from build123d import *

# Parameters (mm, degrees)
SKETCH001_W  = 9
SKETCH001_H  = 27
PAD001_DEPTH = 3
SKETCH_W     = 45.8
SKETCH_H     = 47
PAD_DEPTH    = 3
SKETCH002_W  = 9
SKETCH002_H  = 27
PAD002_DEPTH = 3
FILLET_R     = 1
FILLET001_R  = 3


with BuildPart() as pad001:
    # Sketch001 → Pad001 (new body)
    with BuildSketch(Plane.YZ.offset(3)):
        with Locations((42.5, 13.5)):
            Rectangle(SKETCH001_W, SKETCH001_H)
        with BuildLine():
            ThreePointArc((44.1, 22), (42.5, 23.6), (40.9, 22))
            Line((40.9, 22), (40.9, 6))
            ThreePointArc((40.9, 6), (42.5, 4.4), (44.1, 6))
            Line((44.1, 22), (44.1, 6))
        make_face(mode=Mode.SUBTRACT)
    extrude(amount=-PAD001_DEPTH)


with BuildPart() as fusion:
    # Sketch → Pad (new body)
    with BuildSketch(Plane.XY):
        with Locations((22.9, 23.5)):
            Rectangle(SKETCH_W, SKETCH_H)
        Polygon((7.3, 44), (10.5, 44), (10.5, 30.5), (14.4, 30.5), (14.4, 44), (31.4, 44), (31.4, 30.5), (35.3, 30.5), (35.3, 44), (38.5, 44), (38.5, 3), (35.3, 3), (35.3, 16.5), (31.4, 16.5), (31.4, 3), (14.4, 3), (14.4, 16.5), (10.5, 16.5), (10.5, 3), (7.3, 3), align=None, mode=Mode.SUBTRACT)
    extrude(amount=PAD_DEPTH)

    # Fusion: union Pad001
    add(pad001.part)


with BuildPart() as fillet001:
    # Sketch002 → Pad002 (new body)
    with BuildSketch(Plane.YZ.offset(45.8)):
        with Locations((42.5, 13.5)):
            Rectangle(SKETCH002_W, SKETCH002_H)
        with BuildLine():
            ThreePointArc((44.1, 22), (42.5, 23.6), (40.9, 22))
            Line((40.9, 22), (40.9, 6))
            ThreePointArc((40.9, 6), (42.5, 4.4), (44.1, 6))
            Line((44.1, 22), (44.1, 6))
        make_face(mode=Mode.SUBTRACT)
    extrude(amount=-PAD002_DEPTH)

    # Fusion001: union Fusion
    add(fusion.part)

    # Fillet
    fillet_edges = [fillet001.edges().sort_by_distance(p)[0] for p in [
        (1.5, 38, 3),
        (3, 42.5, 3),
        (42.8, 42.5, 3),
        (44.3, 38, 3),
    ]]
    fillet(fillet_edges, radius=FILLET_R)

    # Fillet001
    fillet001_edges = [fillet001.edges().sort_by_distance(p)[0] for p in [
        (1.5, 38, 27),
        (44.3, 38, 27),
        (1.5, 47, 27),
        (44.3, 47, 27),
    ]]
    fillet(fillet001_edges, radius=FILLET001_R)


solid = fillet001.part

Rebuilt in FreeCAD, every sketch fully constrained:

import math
import FreeCAD as App
import Part
import Sketcher
from FreeCAD import Vector


def edges_at(feature, points):
    """Names of the edges that pass closest to the given points."""
    edges = feature.Shape.Edges
    near = lambda p: min(range(len(edges)), key=lambda i: edges[i].distToShape(Part.Vertex(*p))[0])
    return sorted({f"Edge{near(p) + 1}" for p in points})

doc = App.newDocument("Part")
params = doc.addObject("Spreadsheet::Sheet", "Params")
for row, (alias, value) in enumerate([
    ("sketch1_radius", "1.6 mm"),
    ("sketch1_width", "9 mm"),
    ("sketch1_height", "27 mm"),
    ("sketch1_height2", "16 mm"),
    ("pad1_length", "3 mm"),
    ("sketch2_width", "17 mm"),
    ("sketch2_height", "47 mm"),
    ("sketch2_height2", "41 mm"),
    ("sketch2_width2", "45.8 mm"),
    ("sketch2_width3", "3.2 mm"),
    ("pad2_length", "3 mm"),
    ("sketch3_radius", "1.6 mm"),
    ("sketch3_width", "9 mm"),
    ("sketch3_height", "27 mm"),
    ("sketch3_height2", "16 mm"),
    ("pad3_length", "3 mm"),
    ("fillet_radius", "1 mm"),
    ("fillet2_radius", "3 mm"),
], start=1):
    params.set(f"A{row}", alias)
    params.set(f"B{row}", "=" + value)
    params.setAlias(f"B{row}", alias)

body = doc.addObject("PartDesign::Body", "Body")

# Sketch on YZ plane
sketch1 = doc.addObject("Sketcher::SketchObject", "Sketch")
body.addObject(sketch1)
sketch1.AttachmentSupport = (doc.YZ_Plane, [""])
sketch1.MapMode = "FlatFace"
sketch1.AttachmentOffset = App.Placement(Vector(0, 0, 3), App.Rotation())
sketch1.addGeometry(Part.LineSegment(Vector(38, 27, 0), Vector(38, 0, 0)), False)
sketch1.addGeometry(Part.LineSegment(Vector(38, 0, 0), Vector(47, 0, 0)), False)
sketch1.addGeometry(Part.LineSegment(Vector(47, 0, 0), Vector(47, 27, 0)), False)
sketch1.addGeometry(Part.LineSegment(Vector(47, 27, 0), Vector(38, 27, 0)), False)
sketch1.addGeometry(Part.ArcOfCircle(Part.Circle(Vector(42.5, 22, 0), Vector(0, 0, 1), 1.6), math.radians(0), math.radians(180)), False)
sketch1.addGeometry(Part.LineSegment(Vector(44.1, 22, 0), Vector(44.1, 6, 0)), False)
sketch1.addGeometry(Part.ArcOfCircle(Part.Circle(Vector(42.5, 6, 0), Vector(0, 0, 1), 1.6), math.radians(180), math.radians(360)), False)
sketch1.addGeometry(Part.LineSegment(Vector(40.9, 6, 0), Vector(40.9, 22, 0)), False)
sketch1.addConstraint(Sketcher.Constraint("Coincident", 0, 2, 1, 1))
sketch1.addConstraint(Sketcher.Constraint("Coincident", 1, 2, 2, 1))
sketch1.addConstraint(Sketcher.Constraint("Coincident", 2, 2, 3, 1))
sketch1.addConstraint(Sketcher.Constraint("Coincident", 3, 2, 0, 1))
sketch1.addConstraint(Sketcher.Constraint("Tangent", 4, 1, 5, 1))
sketch1.addConstraint(Sketcher.Constraint("Tangent", 5, 2, 6, 2))
sketch1.addConstraint(Sketcher.Constraint("Tangent", 6, 1, 7, 1))
sketch1.addConstraint(Sketcher.Constraint("Tangent", 7, 2, 4, 2))
sketch1.addConstraint(Sketcher.Constraint("Vertical", 0))
sketch1.addConstraint(Sketcher.Constraint("Horizontal", 1))
sketch1.addConstraint(Sketcher.Constraint("Vertical", 2))
sketch1.addConstraint(Sketcher.Constraint("Horizontal", 3))
sketch1.addConstraint(Sketcher.Constraint("Vertical", 5))
sketch1.addConstraint(Sketcher.Constraint("Vertical", 7))
sketch1.addConstraint(Sketcher.Constraint("PointOnObject", 0, 2, -1))
sketch1.addConstraint(Sketcher.Constraint("Radius", 4, 1.6))
sketch1.addConstraint(Sketcher.Constraint("DistanceX", 1, 1, 1, 2, 9.0))
sketch1.addConstraint(Sketcher.Constraint("DistanceY", 0, 2, 0, 1, 27.0))
sketch1.addConstraint(Sketcher.Constraint("DistanceY", 5, 2, 5, 1, 16.0))
sketch1.addConstraint(Sketcher.Constraint("DistanceY", -1, 1, 4, 3, 22.0))
sketch1.addConstraint(Sketcher.Constraint("DistanceX", -1, 1, 0, 2, 38.0))
sketch1.addConstraint(Sketcher.Constraint("DistanceX", -1, 1, 4, 3, 42.5))
sketch1.setExpression("Constraints[15]", "Params.sketch1_radius")
sketch1.setExpression("Constraints[16]", "Params.sketch1_width")
sketch1.setExpression("Constraints[17]", "Params.sketch1_height")
sketch1.setExpression("Constraints[18]", "Params.sketch1_height2")
pad1 = doc.addObject("PartDesign::Pad", "Pad")
body.addObject(pad1)
pad1.Profile = sketch1
pad1.setExpression("Length", "Params.pad1_length")
pad1.Reversed = True
body2 = doc.addObject("PartDesign::Body", "Body001")

# Sketch on XY plane
sketch2 = doc.addObject("Sketcher::SketchObject", "Sketch001")
body2.addObject(sketch2)
sketch2.AttachmentSupport = (doc.getObject("XY_Plane001"), [""])
sketch2.MapMode = "FlatFace"
sketch2.addGeometry(Part.LineSegment(Vector(0, 47, 0), Vector(0, 0, 0)), False)
sketch2.addGeometry(Part.LineSegment(Vector(0, 0, 0), Vector(45.8, 0, 0)), False)
sketch2.addGeometry(Part.LineSegment(Vector(45.8, 0, 0), Vector(45.8, 47, 0)), False)
sketch2.addGeometry(Part.LineSegment(Vector(45.8, 47, 0), Vector(0, 47, 0)), False)
sketch2.addGeometry(Part.LineSegment(Vector(7.3, 3, 0), Vector(7.3, 44, 0)), False)
sketch2.addGeometry(Part.LineSegment(Vector(7.3, 44, 0), Vector(10.5, 44, 0)), False)
sketch2.addGeometry(Part.LineSegment(Vector(10.5, 44, 0), Vector(10.5, 30.5, 0)), False)
sketch2.addGeometry(Part.LineSegment(Vector(10.5, 30.5, 0), Vector(14.4, 30.5, 0)), False)
sketch2.addGeometry(Part.LineSegment(Vector(14.4, 30.5, 0), Vector(14.4, 44, 0)), False)
sketch2.addGeometry(Part.LineSegment(Vector(14.4, 44, 0), Vector(31.4, 44, 0)), False)
sketch2.addGeometry(Part.LineSegment(Vector(31.4, 44, 0), Vector(31.4, 30.5, 0)), False)
sketch2.addGeometry(Part.LineSegment(Vector(31.4, 30.5, 0), Vector(35.3, 30.5, 0)), False)
sketch2.addGeometry(Part.LineSegment(Vector(35.3, 30.5, 0), Vector(35.3, 44, 0)), False)
sketch2.addGeometry(Part.LineSegment(Vector(35.3, 44, 0), Vector(38.5, 44, 0)), False)
sketch2.addGeometry(Part.LineSegment(Vector(38.5, 44, 0), Vector(38.5, 3, 0)), False)
sketch2.addGeometry(Part.LineSegment(Vector(38.5, 3, 0), Vector(35.3, 3, 0)), False)
sketch2.addGeometry(Part.LineSegment(Vector(35.3, 3, 0), Vector(35.3, 16.5, 0)), False)
sketch2.addGeometry(Part.LineSegment(Vector(35.3, 16.5, 0), Vector(31.4, 16.5, 0)), False)
sketch2.addGeometry(Part.LineSegment(Vector(31.4, 16.5, 0), Vector(31.4, 3, 0)), False)
sketch2.addGeometry(Part.LineSegment(Vector(31.4, 3, 0), Vector(14.4, 3, 0)), False)
sketch2.addGeometry(Part.LineSegment(Vector(14.4, 3, 0), Vector(14.4, 16.5, 0)), False)
sketch2.addGeometry(Part.LineSegment(Vector(14.4, 16.5, 0), Vector(10.5, 16.5, 0)), False)
sketch2.addGeometry(Part.LineSegment(Vector(10.5, 16.5, 0), Vector(10.5, 3, 0)), False)
sketch2.addGeometry(Part.LineSegment(Vector(10.5, 3, 0), Vector(7.3, 3, 0)), False)
sketch2.addConstraint(Sketcher.Constraint("Coincident", 0, 2, 1, 1))
sketch2.addConstraint(Sketcher.Constraint("Coincident", 1, 2, 2, 1))
sketch2.addConstraint(Sketcher.Constraint("Coincident", 2, 2, 3, 1))
sketch2.addConstraint(Sketcher.Constraint("Coincident", 3, 2, 0, 1))
sketch2.addConstraint(Sketcher.Constraint("Coincident", 4, 2, 5, 1))
sketch2.addConstraint(Sketcher.Constraint("Coincident", 5, 2, 6, 1))
sketch2.addConstraint(Sketcher.Constraint("Coincident", 6, 2, 7, 1))
sketch2.addConstraint(Sketcher.Constraint("Coincident", 7, 2, 8, 1))
sketch2.addConstraint(Sketcher.Constraint("Coincident", 8, 2, 9, 1))
sketch2.addConstraint(Sketcher.Constraint("Coincident", 9, 2, 10, 1))
sketch2.addConstraint(Sketcher.Constraint("Coincident", 10, 2, 11, 1))
sketch2.addConstraint(Sketcher.Constraint("Coincident", 11, 2, 12, 1))
sketch2.addConstraint(Sketcher.Constraint("Coincident", 12, 2, 13, 1))
sketch2.addConstraint(Sketcher.Constraint("Coincident", 13, 2, 14, 1))
sketch2.addConstraint(Sketcher.Constraint("Coincident", 14, 2, 15, 1))
sketch2.addConstraint(Sketcher.Constraint("Coincident", 15, 2, 16, 1))
sketch2.addConstraint(Sketcher.Constraint("Coincident", 16, 2, 17, 1))
sketch2.addConstraint(Sketcher.Constraint("Coincident", 17, 2, 18, 1))
sketch2.addConstraint(Sketcher.Constraint("Coincident", 18, 2, 19, 1))
sketch2.addConstraint(Sketcher.Constraint("Coincident", 19, 2, 20, 1))
sketch2.addConstraint(Sketcher.Constraint("Coincident", 20, 2, 21, 1))
sketch2.addConstraint(Sketcher.Constraint("Coincident", 21, 2, 22, 1))
sketch2.addConstraint(Sketcher.Constraint("Coincident", 22, 2, 23, 1))
sketch2.addConstraint(Sketcher.Constraint("Coincident", 23, 2, 4, 1))
sketch2.addConstraint(Sketcher.Constraint("Vertical", 0))
sketch2.addConstraint(Sketcher.Constraint("Horizontal", 1))
sketch2.addConstraint(Sketcher.Constraint("Vertical", 2))
sketch2.addConstraint(Sketcher.Constraint("Horizontal", 3))
sketch2.addConstraint(Sketcher.Constraint("Vertical", 4))
sketch2.addConstraint(Sketcher.Constraint("Horizontal", 5))
sketch2.addConstraint(Sketcher.Constraint("Vertical", 6))
sketch2.addConstraint(Sketcher.Constraint("Horizontal", 7))
sketch2.addConstraint(Sketcher.Constraint("Vertical", 8))
sketch2.addConstraint(Sketcher.Constraint("Horizontal", 9))
sketch2.addConstraint(Sketcher.Constraint("Vertical", 10))
sketch2.addConstraint(Sketcher.Constraint("Horizontal", 11))
sketch2.addConstraint(Sketcher.Constraint("Vertical", 12))
sketch2.addConstraint(Sketcher.Constraint("Horizontal", 13))
sketch2.addConstraint(Sketcher.Constraint("Vertical", 14))
sketch2.addConstraint(Sketcher.Constraint("Horizontal", 15))
sketch2.addConstraint(Sketcher.Constraint("Vertical", 16))
sketch2.addConstraint(Sketcher.Constraint("Horizontal", 17))
sketch2.addConstraint(Sketcher.Constraint("Vertical", 18))
sketch2.addConstraint(Sketcher.Constraint("Horizontal", 19))
sketch2.addConstraint(Sketcher.Constraint("Vertical", 20))
sketch2.addConstraint(Sketcher.Constraint("Horizontal", 21))
sketch2.addConstraint(Sketcher.Constraint("Vertical", 22))
sketch2.addConstraint(Sketcher.Constraint("Horizontal", 23))
sketch2.addConstraint(Sketcher.Constraint("Coincident", 0, 2, -1, 1))
sketch2.addConstraint(Sketcher.Constraint("Horizontal", 5, 2, 8, 2))
sketch2.addConstraint(Sketcher.Constraint("Horizontal", 7, 2, 10, 2))
sketch2.addConstraint(Sketcher.Constraint("Horizontal", 9, 2, 12, 2))
sketch2.addConstraint(Sketcher.Constraint("Horizontal", 15, 2, 18, 2))
sketch2.addConstraint(Sketcher.Constraint("Horizontal", 17, 2, 20, 2))
sketch2.addConstraint(Sketcher.Constraint("Horizontal", 19, 2, 22, 2))
sketch2.addConstraint(Sketcher.Constraint("Vertical", 12, 2, 15, 2))
sketch2.addConstraint(Sketcher.Constraint("Vertical", 10, 2, 17, 2))
sketch2.addConstraint(Sketcher.Constraint("Vertical", 8, 2, 19, 2))
sketch2.addConstraint(Sketcher.Constraint("Vertical", 6, 2, 21, 2))
sketch2.addConstraint(Sketcher.Constraint("Equal", 7, 11))
sketch2.addConstraint(Sketcher.Constraint("Equal", 5, 13))
sketch2.addConstraint(Sketcher.Constraint("Equal", 12, 16))
sketch2.addConstraint(Sketcher.Constraint("DistanceX", 9, 1, 9, 2, 17.0))
sketch2.addConstraint(Sketcher.Constraint("DistanceY", 0, 2, 0, 1, 47.0))
sketch2.addConstraint(Sketcher.Constraint("DistanceY", 4, 1, 4, 2, 41.0))
sketch2.addConstraint(Sketcher.Constraint("DistanceX", 1, 1, 1, 2, 45.8))
sketch2.addConstraint(Sketcher.Constraint("DistanceX", 5, 1, 5, 2, 3.2))
sketch2.addConstraint(Sketcher.Constraint("DistanceX", 7, 1, 7, 2, 3.9))
sketch2.addConstraint(Sketcher.Constraint("DistanceY", 6, 2, 6, 1, 13.5))
sketch2.addConstraint(Sketcher.Constraint("DistanceY", -1, 1, 4, 2, 44.0))
sketch2.addConstraint(Sketcher.Constraint("DistanceX", -1, 1, 4, 2, 7.3))
sketch2.setExpression("Constraints[62]", "Params.sketch2_width")
sketch2.setExpression("Constraints[63]", "Params.sketch2_height")
sketch2.setExpression("Constraints[64]", "Params.sketch2_height2")
sketch2.setExpression("Constraints[65]", "Params.sketch2_width2")
sketch2.setExpression("Constraints[66]", "Params.sketch2_width3")
pad2 = doc.addObject("PartDesign::Pad", "Pad001")
body2.addObject(pad2)
pad2.Profile = sketch2
pad2.setExpression("Length", "Params.pad2_length")
doc.recompute()

boolean = doc.addObject("PartDesign::Boolean", "Boolean")
body2.addObject(boolean)
boolean.Type = "Fuse"
boolean.addObjects([body])
body3 = doc.addObject("PartDesign::Body", "Body002")

# Sketch on YZ plane
sketch3 = doc.addObject("Sketcher::SketchObject", "Sketch002")
body3.addObject(sketch3)
sketch3.AttachmentSupport = (doc.getObject("YZ_Plane002"), [""])
sketch3.MapMode = "FlatFace"
sketch3.AttachmentOffset = App.Placement(Vector(0, 0, 45.8), App.Rotation())
sketch3.addGeometry(Part.LineSegment(Vector(38, 27, 0), Vector(38, 0, 0)), False)
sketch3.addGeometry(Part.LineSegment(Vector(38, 0, 0), Vector(47, 0, 0)), False)
sketch3.addGeometry(Part.LineSegment(Vector(47, 0, 0), Vector(47, 27, 0)), False)
sketch3.addGeometry(Part.LineSegment(Vector(47, 27, 0), Vector(38, 27, 0)), False)
sketch3.addGeometry(Part.ArcOfCircle(Part.Circle(Vector(42.5, 22, 0), Vector(0, 0, 1), 1.6), math.radians(0), math.radians(180)), False)
sketch3.addGeometry(Part.LineSegment(Vector(44.1, 22, 0), Vector(44.1, 6, 0)), False)
sketch3.addGeometry(Part.ArcOfCircle(Part.Circle(Vector(42.5, 6, 0), Vector(0, 0, 1), 1.6), math.radians(180), math.radians(360)), False)
sketch3.addGeometry(Part.LineSegment(Vector(40.9, 6, 0), Vector(40.9, 22, 0)), False)
sketch3.addConstraint(Sketcher.Constraint("Coincident", 0, 2, 1, 1))
sketch3.addConstraint(Sketcher.Constraint("Coincident", 1, 2, 2, 1))
sketch3.addConstraint(Sketcher.Constraint("Coincident", 2, 2, 3, 1))
sketch3.addConstraint(Sketcher.Constraint("Coincident", 3, 2, 0, 1))
sketch3.addConstraint(Sketcher.Constraint("Tangent", 4, 1, 5, 1))
sketch3.addConstraint(Sketcher.Constraint("Tangent", 5, 2, 6, 2))
sketch3.addConstraint(Sketcher.Constraint("Tangent", 6, 1, 7, 1))
sketch3.addConstraint(Sketcher.Constraint("Tangent", 7, 2, 4, 2))
sketch3.addConstraint(Sketcher.Constraint("Vertical", 0))
sketch3.addConstraint(Sketcher.Constraint("Horizontal", 1))
sketch3.addConstraint(Sketcher.Constraint("Vertical", 2))
sketch3.addConstraint(Sketcher.Constraint("Horizontal", 3))
sketch3.addConstraint(Sketcher.Constraint("Vertical", 5))
sketch3.addConstraint(Sketcher.Constraint("Vertical", 7))
sketch3.addConstraint(Sketcher.Constraint("PointOnObject", 0, 2, -1))
sketch3.addConstraint(Sketcher.Constraint("Radius", 4, 1.6))
sketch3.addConstraint(Sketcher.Constraint("DistanceX", 1, 1, 1, 2, 9.0))
sketch3.addConstraint(Sketcher.Constraint("DistanceY", 0, 2, 0, 1, 27.0))
sketch3.addConstraint(Sketcher.Constraint("DistanceY", 5, 2, 5, 1, 16.0))
sketch3.addConstraint(Sketcher.Constraint("DistanceY", -1, 1, 4, 3, 22.0))
sketch3.addConstraint(Sketcher.Constraint("DistanceX", -1, 1, 0, 2, 38.0))
sketch3.addConstraint(Sketcher.Constraint("DistanceX", -1, 1, 4, 3, 42.5))
sketch3.setExpression("Constraints[15]", "Params.sketch3_radius")
sketch3.setExpression("Constraints[16]", "Params.sketch3_width")
sketch3.setExpression("Constraints[17]", "Params.sketch3_height")
sketch3.setExpression("Constraints[18]", "Params.sketch3_height2")
pad3 = doc.addObject("PartDesign::Pad", "Pad002")
body3.addObject(pad3)
pad3.Profile = sketch3
pad3.setExpression("Length", "Params.pad3_length")
pad3.Reversed = True
doc.recompute()

boolean2 = doc.addObject("PartDesign::Boolean", "Boolean001")
body3.addObject(boolean2)
boolean2.Type = "Fuse"
boolean2.addObjects([body2])
doc.recompute()

fillet = doc.addObject("PartDesign::Fillet", "Fillet")
body3.addObject(fillet)
fillet.Base = (boolean2, edges_at(boolean2, [
    (1.5, 38, 3),
    (3, 42.5, 3),
    (42.8, 42.5, 3),
    (44.3, 38, 3),
]))
fillet.setExpression("Radius", "Params.fillet_radius")
doc.recompute()

fillet2 = doc.addObject("PartDesign::Fillet", "Fillet001")
body3.addObject(fillet2)
fillet2.Base = (fillet, edges_at(fillet, [
    (1.5, 38, 27),
    (44.3, 38, 27),
    (1.5, 47, 27),
    (44.3, 47, 27),
]))
fillet2.setExpression("Radius", "Params.fillet2_radius")

doc.recompute()
